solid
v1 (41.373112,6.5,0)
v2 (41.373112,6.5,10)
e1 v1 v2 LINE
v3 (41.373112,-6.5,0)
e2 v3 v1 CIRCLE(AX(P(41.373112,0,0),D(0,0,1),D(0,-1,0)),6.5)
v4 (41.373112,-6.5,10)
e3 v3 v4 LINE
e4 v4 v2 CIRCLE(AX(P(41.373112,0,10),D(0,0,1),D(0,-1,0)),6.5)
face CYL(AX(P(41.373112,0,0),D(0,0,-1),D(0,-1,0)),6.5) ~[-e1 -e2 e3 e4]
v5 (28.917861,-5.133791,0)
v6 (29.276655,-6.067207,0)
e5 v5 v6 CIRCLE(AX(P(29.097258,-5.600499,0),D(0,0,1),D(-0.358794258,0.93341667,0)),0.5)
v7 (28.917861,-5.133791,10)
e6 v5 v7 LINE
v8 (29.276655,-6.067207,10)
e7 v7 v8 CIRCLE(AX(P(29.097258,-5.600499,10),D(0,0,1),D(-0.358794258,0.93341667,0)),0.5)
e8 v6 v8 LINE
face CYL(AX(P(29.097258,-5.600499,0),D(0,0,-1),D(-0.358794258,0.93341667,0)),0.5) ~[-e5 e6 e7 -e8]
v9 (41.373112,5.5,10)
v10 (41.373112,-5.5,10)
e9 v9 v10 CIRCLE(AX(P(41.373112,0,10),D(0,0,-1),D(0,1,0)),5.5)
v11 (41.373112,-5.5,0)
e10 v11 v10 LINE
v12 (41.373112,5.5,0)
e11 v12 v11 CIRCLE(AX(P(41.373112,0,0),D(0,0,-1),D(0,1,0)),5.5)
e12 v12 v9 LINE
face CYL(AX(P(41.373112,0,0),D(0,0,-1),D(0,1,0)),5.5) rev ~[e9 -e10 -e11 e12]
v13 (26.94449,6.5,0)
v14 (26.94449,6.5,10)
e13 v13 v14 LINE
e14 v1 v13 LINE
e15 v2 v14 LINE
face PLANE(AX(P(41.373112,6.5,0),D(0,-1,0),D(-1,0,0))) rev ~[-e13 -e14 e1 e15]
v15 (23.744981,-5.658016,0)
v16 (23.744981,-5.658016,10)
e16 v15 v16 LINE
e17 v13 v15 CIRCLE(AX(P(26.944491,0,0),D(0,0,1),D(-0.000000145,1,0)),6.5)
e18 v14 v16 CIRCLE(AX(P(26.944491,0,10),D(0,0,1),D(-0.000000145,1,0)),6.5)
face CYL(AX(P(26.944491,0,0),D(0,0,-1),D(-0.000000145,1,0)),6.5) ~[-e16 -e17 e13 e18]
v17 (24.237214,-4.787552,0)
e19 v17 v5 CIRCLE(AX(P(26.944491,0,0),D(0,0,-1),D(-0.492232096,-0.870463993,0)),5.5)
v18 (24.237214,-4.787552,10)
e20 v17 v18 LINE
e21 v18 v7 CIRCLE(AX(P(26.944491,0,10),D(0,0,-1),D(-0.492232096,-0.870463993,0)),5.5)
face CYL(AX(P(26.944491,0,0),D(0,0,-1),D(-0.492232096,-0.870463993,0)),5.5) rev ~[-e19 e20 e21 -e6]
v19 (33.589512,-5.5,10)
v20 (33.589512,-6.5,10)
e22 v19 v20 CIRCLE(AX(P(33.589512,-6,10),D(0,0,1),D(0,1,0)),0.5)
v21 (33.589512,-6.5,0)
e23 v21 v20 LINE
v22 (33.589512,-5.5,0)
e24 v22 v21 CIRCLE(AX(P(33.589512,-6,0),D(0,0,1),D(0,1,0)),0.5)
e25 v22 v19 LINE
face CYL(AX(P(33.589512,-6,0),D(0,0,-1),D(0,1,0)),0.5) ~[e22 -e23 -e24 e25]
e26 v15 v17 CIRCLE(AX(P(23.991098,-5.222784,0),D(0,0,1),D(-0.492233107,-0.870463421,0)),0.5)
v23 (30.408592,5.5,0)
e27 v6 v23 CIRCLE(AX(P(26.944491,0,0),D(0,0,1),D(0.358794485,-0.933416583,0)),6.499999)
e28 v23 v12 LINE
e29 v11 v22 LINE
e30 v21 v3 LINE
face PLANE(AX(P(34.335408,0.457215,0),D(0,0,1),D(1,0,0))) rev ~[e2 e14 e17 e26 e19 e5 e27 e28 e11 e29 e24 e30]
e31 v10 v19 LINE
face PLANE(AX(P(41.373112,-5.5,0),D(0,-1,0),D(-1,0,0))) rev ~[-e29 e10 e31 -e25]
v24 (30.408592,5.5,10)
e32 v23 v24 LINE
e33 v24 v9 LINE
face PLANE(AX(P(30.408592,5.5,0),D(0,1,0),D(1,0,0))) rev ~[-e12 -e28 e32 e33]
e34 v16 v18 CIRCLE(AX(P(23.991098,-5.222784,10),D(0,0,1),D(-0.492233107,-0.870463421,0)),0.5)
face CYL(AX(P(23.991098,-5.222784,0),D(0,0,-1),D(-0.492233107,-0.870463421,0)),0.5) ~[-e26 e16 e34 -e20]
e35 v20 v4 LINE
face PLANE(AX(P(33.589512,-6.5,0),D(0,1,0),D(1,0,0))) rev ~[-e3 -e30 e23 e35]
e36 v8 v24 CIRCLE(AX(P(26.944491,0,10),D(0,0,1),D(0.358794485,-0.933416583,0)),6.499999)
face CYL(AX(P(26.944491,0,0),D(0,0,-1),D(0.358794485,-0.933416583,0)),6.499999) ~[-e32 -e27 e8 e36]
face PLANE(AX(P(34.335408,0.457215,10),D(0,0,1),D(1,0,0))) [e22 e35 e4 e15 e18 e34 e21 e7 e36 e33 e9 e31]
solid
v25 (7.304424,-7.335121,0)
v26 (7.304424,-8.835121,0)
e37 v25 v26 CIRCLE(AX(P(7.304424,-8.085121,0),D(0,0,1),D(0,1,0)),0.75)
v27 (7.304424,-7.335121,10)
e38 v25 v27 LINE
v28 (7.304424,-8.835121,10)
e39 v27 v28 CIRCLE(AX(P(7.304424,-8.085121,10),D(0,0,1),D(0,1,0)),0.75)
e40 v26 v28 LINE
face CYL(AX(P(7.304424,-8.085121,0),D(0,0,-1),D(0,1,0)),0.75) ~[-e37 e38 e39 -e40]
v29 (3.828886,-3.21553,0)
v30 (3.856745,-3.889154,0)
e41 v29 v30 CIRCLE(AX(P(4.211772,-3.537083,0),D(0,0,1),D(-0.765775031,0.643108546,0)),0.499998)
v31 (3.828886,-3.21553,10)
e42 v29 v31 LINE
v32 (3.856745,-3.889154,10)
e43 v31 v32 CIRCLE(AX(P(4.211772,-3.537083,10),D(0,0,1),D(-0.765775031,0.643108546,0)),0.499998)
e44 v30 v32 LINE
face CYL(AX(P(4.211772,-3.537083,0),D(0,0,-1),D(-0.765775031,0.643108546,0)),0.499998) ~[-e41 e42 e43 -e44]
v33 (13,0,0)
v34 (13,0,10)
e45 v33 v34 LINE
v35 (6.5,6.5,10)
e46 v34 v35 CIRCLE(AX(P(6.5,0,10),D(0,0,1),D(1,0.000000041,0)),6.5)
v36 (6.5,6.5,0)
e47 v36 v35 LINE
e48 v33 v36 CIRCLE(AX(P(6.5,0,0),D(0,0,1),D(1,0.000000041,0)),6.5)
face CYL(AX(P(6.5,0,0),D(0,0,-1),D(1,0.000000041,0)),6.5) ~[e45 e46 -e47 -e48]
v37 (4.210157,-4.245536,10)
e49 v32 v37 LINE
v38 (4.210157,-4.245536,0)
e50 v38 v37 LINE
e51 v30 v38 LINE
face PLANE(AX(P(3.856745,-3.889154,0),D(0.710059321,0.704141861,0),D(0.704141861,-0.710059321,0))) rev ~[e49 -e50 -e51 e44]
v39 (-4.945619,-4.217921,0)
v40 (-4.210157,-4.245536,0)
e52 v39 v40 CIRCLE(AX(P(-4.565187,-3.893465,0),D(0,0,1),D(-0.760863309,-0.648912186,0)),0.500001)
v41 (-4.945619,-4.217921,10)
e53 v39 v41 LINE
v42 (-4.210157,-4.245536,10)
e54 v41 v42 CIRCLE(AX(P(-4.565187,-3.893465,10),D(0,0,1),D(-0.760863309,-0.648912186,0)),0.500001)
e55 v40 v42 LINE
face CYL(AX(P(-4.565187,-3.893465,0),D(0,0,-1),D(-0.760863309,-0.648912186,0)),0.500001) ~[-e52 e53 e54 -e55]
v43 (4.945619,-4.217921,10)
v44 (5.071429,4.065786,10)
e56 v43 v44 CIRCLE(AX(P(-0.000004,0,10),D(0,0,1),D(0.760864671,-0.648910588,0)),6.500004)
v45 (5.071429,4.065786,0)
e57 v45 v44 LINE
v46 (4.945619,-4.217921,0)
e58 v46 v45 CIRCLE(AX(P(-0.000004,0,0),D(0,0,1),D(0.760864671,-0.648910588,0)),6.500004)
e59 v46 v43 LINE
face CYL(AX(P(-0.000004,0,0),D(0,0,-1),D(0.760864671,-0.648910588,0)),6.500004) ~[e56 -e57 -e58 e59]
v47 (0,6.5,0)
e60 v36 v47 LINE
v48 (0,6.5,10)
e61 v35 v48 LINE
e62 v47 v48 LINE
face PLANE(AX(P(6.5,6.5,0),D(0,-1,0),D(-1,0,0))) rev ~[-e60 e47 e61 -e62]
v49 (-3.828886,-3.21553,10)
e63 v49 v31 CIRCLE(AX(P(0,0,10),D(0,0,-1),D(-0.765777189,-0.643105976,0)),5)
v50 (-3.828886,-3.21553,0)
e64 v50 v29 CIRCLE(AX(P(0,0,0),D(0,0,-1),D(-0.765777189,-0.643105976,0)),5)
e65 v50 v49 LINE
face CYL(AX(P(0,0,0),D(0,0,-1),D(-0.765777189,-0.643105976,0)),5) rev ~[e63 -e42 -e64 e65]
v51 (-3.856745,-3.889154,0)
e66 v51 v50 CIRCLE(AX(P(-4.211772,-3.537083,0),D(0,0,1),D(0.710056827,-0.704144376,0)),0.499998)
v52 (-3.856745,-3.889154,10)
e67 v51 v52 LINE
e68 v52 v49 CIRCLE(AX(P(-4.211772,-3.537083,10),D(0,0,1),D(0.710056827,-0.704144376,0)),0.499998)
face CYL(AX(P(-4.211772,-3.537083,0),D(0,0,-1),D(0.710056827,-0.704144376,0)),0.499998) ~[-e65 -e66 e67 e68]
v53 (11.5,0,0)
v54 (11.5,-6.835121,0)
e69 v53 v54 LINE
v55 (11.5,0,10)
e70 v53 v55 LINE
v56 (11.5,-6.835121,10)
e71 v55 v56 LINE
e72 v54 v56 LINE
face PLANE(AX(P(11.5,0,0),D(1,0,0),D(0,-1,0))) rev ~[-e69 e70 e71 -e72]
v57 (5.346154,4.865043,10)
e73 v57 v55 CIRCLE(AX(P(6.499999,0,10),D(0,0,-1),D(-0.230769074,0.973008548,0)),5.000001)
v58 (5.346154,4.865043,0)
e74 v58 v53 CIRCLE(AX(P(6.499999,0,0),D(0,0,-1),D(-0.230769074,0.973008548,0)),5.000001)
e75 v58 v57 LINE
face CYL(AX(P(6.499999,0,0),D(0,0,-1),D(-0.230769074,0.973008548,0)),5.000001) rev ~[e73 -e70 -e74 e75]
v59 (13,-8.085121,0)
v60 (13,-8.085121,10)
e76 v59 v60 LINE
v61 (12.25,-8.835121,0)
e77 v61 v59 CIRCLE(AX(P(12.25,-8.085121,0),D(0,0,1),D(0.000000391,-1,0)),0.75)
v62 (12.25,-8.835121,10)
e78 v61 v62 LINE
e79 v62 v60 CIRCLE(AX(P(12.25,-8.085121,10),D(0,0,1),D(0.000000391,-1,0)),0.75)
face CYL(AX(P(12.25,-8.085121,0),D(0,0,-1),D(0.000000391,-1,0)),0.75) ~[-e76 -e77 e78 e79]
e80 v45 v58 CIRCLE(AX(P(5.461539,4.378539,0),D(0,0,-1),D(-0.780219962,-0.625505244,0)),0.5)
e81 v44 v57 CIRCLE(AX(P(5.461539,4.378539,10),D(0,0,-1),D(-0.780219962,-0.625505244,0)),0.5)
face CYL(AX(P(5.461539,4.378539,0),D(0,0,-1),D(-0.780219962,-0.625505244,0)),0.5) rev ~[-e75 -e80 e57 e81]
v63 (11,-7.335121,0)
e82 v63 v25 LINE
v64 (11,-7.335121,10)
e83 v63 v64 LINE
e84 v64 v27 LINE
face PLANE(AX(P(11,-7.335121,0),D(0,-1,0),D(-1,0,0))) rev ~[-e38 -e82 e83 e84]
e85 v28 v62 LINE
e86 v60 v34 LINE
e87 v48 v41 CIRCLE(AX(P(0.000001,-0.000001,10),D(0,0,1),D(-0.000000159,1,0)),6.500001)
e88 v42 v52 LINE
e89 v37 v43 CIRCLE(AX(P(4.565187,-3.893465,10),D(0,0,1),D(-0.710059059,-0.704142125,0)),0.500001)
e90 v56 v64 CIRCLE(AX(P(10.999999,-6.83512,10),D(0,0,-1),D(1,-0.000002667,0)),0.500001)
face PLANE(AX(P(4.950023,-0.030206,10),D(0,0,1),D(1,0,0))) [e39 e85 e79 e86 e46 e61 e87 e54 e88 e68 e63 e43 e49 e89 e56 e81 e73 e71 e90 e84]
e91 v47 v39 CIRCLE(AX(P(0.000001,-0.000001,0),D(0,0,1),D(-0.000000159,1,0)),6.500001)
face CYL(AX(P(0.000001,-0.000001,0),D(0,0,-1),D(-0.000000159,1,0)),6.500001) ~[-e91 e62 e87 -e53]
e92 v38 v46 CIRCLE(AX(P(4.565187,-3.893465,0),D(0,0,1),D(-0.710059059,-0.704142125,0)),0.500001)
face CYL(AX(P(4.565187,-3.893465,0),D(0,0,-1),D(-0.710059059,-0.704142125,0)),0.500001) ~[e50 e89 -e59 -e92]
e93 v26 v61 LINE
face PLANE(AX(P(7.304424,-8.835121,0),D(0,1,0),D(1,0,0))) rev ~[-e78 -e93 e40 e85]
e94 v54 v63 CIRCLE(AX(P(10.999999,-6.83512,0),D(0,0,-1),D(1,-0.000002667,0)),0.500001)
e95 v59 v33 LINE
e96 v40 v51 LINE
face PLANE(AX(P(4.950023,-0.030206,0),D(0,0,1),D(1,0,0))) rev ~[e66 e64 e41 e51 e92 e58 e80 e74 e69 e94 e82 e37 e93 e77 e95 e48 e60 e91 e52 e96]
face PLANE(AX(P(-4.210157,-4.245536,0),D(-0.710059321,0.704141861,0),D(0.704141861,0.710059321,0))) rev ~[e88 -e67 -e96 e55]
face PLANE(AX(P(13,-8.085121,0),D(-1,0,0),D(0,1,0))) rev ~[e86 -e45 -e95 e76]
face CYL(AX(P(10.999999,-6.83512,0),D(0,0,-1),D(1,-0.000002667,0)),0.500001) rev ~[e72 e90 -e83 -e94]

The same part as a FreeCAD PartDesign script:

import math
import FreeCAD as App
import Part
import Sketcher

doc = App.newDocument("Part")
params = doc.addObject("Spreadsheet::Sheet", "Params")
for row, (alias, value) in enumerate([
    ("sketch1_radius", "5 mm"),
    ("sketch1_radius2", "0.499998 mm"),
    ("sketch1_radius3", "6.5 mm"),
    ("sketch1_radius4", "0.75 mm"),
    ("sketch1_width", "6.5 mm"),
    ("pad1_length", "10 mm"),
], start=1):
    params.set(f"A{row}", alias)
    params.set(f"B{row}", "=" + value)
    params.setAlias(f"B{row}", alias)

body = doc.addObject("PartDesign::Body", "Body")
body.AllowCompound = True

# Sketch on XY plane
sketch1 = body.newObject("Sketcher::SketchObject", "Sketch")
sketch1.AttachmentSupport = (doc.getObject("XY_Plane"), [""])
sketch1.MapMode = "FlatFace"
sketch1.addGeometry([
    Part.ArcOfCircle(Part.Circle(App.Vector(0, 0, 0), App.Vector(0, 0, 1), 5), math.radians(-40), math.radians(220)),  # 0
    Part.ArcOfCircle(Part.Circle(App.Vector(4.21, -3.54, 0), App.Vector(0, 0, 1), 0.5), math.radians(140), math.radians(225)),  # 1
    Part.LineSegment(App.Vector(3.86, -3.89, 0), App.Vector(4.21, -4.25, 0)),  # 2
    Part.ArcOfCircle(Part.Circle(App.Vector(4.57, -3.89, 0), App.Vector(0, 0, 1), 0.5), math.radians(-135), math.radians(-40)),  # 3
    Part.ArcOfCircle(Part.Circle(App.Vector(0, 0, 0), App.Vector(0, 0, 1), 6.5), math.radians(-40), math.radians(39)),  # 4
    Part.ArcOfCircle(Part.Circle(App.Vector(5.46, 4.38, 0), App.Vector(0, 0, 1), 0.5), math.radians(103), math.radians(219)),  # 5
    Part.ArcOfCircle(Part.Circle(App.Vector(6.5, 0, 0), App.Vector(0, 0, 1), 5), math.radians(0), math.radians(103)),  # 6
    Part.LineSegment(App.Vector(11.5, 0, 0), App.Vector(11.5, -6.84, 0)),  # 7
    Part.ArcOfCircle(Part.Circle(App.Vector(11, -6.84, 0), App.Vector(0, 0, 1), 0.5), math.radians(-90), math.radians(0)),  # 8
    Part.LineSegment(App.Vector(11, -7.34, 0), App.Vector(7.3, -7.34, 0)),  # 9
    Part.ArcOfCircle(Part.Circle(App.Vector(7.3, -8.09, 0), App.Vector(0, 0, 1), 0.75), math.radians(90), math.radians(270)),  # 10
    Part.LineSegment(App.Vector(7.3, -8.84, 0), App.Vector(12.25, -8.84, 0)),  # 11
    Part.ArcOfCircle(Part.Circle(App.Vector(12.25, -8.09, 0), App.Vector(0, 0, 1), 0.75), math.radians(-90), math.radians(0)),  # 12
    Part.LineSegment(App.Vector(13, -8.09, 0), App.Vector(13, 0, 0)),  # 13
    Part.ArcOfCircle(Part.Circle(App.Vector(6.5, 0, 0), App.Vector(0, 0, 1), 6.5), math.radians(0), math.radians(90)),  # 14
    Part.LineSegment(App.Vector(6.5, 6.5, 0), App.Vector(0, 6.5, 0)),  # 15
    Part.ArcOfCircle(Part.Circle(App.Vector(0, 0, 0), App.Vector(0, 0, 1), 6.5), math.radians(90), math.radians(220)),  # 16
    Part.ArcOfCircle(Part.Circle(App.Vector(-4.57, -3.89, 0), App.Vector(0, 0, 1), 0.5), math.radians(-140), math.radians(-45)),  # 17
    Part.LineSegment(App.Vector(-4.21, -4.25, 0), App.Vector(-3.86, -3.89, 0)),  # 18
    Part.ArcOfCircle(Part.Circle(App.Vector(-4.21, -3.54, 0), App.Vector(0, 0, 1), 0.5), math.radians(-45), math.radians(40)),  # 19
    Part.ArcOfCircle(Part.Circle(App.Vector(26.94, 0, 0), App.Vector(0, 0, 1), 5.5), math.radians(-69), math.radians(241)),  # 20
    Part.ArcOfCircle(Part.Circle(App.Vector(29.1, -5.6, 0), App.Vector(0, 0, 1), 0.5), math.radians(111), math.radians(291)),  # 21
    Part.ArcOfCircle(Part.Circle(App.Vector(26.94, 0, 0), App.Vector(0, 0, 1), 6.5), math.radians(-69), math.radians(58)),  # 22
    Part.LineSegment(App.Vector(30.41, 5.5, 0), App.Vector(41.37, 5.5, 0)),  # 23
    Part.ArcOfCircle(Part.Circle(App.Vector(41.37, 0, 0), App.Vector(0, 0, 1), 5.5), math.radians(-90), math.radians(90)),  # 24
    Part.LineSegment(App.Vector(41.37, -5.5, 0), App.Vector(33.59, -5.5, 0)),  # 25
    Part.ArcOfCircle(Part.Circle(App.Vector(33.59, -6, 0), App.Vector(0, 0, 1), 0.5), math.radians(90), math.radians(270)),  # 26
    Part.LineSegment(App.Vector(33.59, -6.5, 0), App.Vector(41.37, -6.5, 0)),  # 27
    Part.ArcOfCircle(Part.Circle(App.Vector(41.37, 0, 0), App.Vector(0, 0, 1), 6.5), math.radians(-90), math.radians(90)),  # 28
    Part.LineSegment(App.Vector(41.37, 6.5, 0), App.Vector(26.94, 6.5, 0)),  # 29
    Part.ArcOfCircle(Part.Circle(App.Vector(26.94, 0, 0), App.Vector(0, 0, 1), 6.5), math.radians(90), math.radians(241)),  # 30
    Part.ArcOfCircle(Part.Circle(App.Vector(23.99, -5.22, 0), App.Vector(0, 0, 1), 0.5), math.radians(-119), math.radians(61)),  # 31
], False)
sketch1.addConstraint([
    Sketcher.Constraint("Coincident", 0, 1, 1, 1),
    Sketcher.Constraint("Coincident", 1, 2, 2, 1),
    Sketcher.Constraint("Tangent", 2, 2, 3, 1),
    Sketcher.Constraint("Coincident", 3, 2, 4, 1),
    Sketcher.Constraint("Tangent", 4, 2, 5, 2),
    Sketcher.Constraint("Tangent", 5, 1, 6, 2),
    Sketcher.Constraint("Tangent", 6, 1, 7, 1),
    Sketcher.Constraint("Coincident", 7, 2, 8, 2),
    Sketcher.Constraint("Coincident", 8, 1, 9, 1),
    Sketcher.Constraint("Tangent", 9, 2, 10, 1),
    Sketcher.Constraint("Tangent", 10, 2, 11, 1),
    Sketcher.Constraint("Tangent", 11, 2, 12, 1),
    Sketcher.Constraint("Tangent", 12, 2, 13, 1),
    Sketcher.Constraint("Tangent", 13, 2, 14, 1),
    Sketcher.Constraint("Tangent", 14, 2, 15, 1),
    Sketcher.Constraint("Tangent", 15, 2, 16, 1),
    Sketcher.Constraint("Tangent", 16, 2, 17, 1),
    Sketcher.Constraint("Tangent", 17, 2, 18, 1),
    Sketcher.Constraint("Coincident", 18, 2, 19, 1),
    Sketcher.Constraint("Coincident", 19, 2, 0, 2),
    Sketcher.Constraint("Tangent", 20, 1, 21, 1),
    Sketcher.Constraint("Tangent", 21, 2, 22, 1),
    Sketcher.Constraint("Coincident", 22, 2, 23, 1),
    Sketcher.Constraint("Tangent", 23, 2, 24, 2),
    Sketcher.Constraint("Tangent", 24, 1, 25, 1),
    Sketcher.Constraint("Tangent", 25, 2, 26, 1),
    Sketcher.Constraint("Tangent", 26, 2, 27, 1),
    Sketcher.Constraint("Tangent", 27, 2, 28, 1),
    Sketcher.Constraint("Tangent", 28, 2, 29, 1),
    Sketcher.Constraint("Tangent", 29, 2, 30, 1),
    Sketcher.Constraint("Tangent", 30, 2, 31, 1),
    Sketcher.Constraint("Tangent", 31, 2, 20, 2),
    Sketcher.Constraint("Vertical", 7),
    Sketcher.Constraint("Horizontal", 9),
    Sketcher.Constraint("Horizontal", 11),
    Sketcher.Constraint("Vertical", 13),
    Sketcher.Constraint("Horizontal", 15),
    Sketcher.Constraint("Horizontal", 23),
    Sketcher.Constraint("Horizontal", 25),
    Sketcher.Constraint("Horizontal", 27),
    Sketcher.Constraint("Horizontal", 29),
    Sketcher.Constraint("Coincident", 0, 3, -1, 1),
    Sketcher.Constraint("Coincident", 4, 3, -1, 1),
    Sketcher.Constraint("Coincident", 16, 3, -1, 1),
    Sketcher.Constraint("Coincident", 14, 3, 6, 3),
    Sketcher.Constraint("Coincident", 22, 3, 20, 3),
    Sketcher.Constraint("Coincident", 28, 3, 24, 3),
    Sketcher.Constraint("Coincident", 30, 3, 20, 3),
    Sketcher.Constraint("Equal", 3, 5),
    Sketcher.Constraint("Equal", 0, 6),
    Sketcher.Constraint("Equal", 5, 8),
    Sketcher.Constraint("Equal", 10, 12),
    Sketcher.Constraint("Equal", 14, 16),
    Sketcher.Constraint("Equal", 8, 17),
    Sketcher.Constraint("Equal", 5, 19),
    Sketcher.Constraint("Equal", 19, 21),
    Sketcher.Constraint("Equal", 16, 22),
    Sketcher.Constraint("Equal", 20, 24),
    Sketcher.Constraint("Equal", 21, 26),
    Sketcher.Constraint("Equal", 28, 30),
    Sketcher.Constraint("Symmetric", 3, 3, 17, 3, -2),
    Sketcher.Constraint("Symmetric", 1, 3, 19, 3, -2),
    Sketcher.Constraint("PointOnObject", 20, 3, -1),
    Sketcher.Constraint("Horizontal", 8, 3, 7, 2),
    Sketcher.Constraint("Horizontal", 3, 2, 16, 2),
    Sketcher.Constraint("Horizontal", 1, 2, 18, 2),
    Sketcher.Constraint("Horizontal", 0, 1, 19, 2),
    Sketcher.Constraint("Radius", 0, 5.0),
    Sketcher.Constraint("Radius", 1, 0.499998),
    Sketcher.Constraint("Radius", 14, 6.5),
    Sketcher.Constraint("Radius", 10, 0.75),
    Sketcher.Constraint("DistanceX", 15, 2, 15, 1, 6.5),
    Sketcher.Constraint("DistanceX", -1, 1, 8, 1, 11.0),
    Sketcher.Constraint("DistanceX", 25, 2, 25, 1, 7.7836),
    Sketcher.Constraint("DistanceX", 23, 1, 23, 2, 10.96452),
    Sketcher.Constraint("DistanceY", 7, 2, 7, 1, 6.835121),
    Sketcher.Constraint("DistanceY", 21, 3, -1, 1, 5.600499),
    Sketcher.Constraint("DistanceX", 0, 1, 3, 3, 0.736301),
    Sketcher.Constraint("DistanceY", 7, 2, 3, 2, 2.6172),
    Sketcher.Constraint("DistanceX", 9, 2, 9, 1, 3.695576),
    Sketcher.Constraint("DistanceX", -1, 1, 20, 3, 26.944491),
    Sketcher.Constraint("DistanceX", -1, 1, 30, 2, 23.744981),
    Sketcher.Constraint("DistanceY", 3, 3, 1, 3, 0.356381),
    Sketcher.Constraint("DistanceY", 1, 2, 1, 3, 0.352071),
])
sketch1.setExpression("Constraints[67]", "Params.sketch1_radius")
sketch1.setExpression("Constraints[68]", "Params.sketch1_radius2")
sketch1.setExpression("Constraints[69]", "Params.sketch1_radius3")
sketch1.setExpression("Constraints[70]", "Params.sketch1_radius4")
sketch1.setExpression("Constraints[71]", "Params.sketch1_width")
pad1 = body.newObject("PartDesign::Pad", "Pad")
pad1.Profile = sketch1
pad1.setExpression("Length", "Params.pad1_length")

doc.recompute()
